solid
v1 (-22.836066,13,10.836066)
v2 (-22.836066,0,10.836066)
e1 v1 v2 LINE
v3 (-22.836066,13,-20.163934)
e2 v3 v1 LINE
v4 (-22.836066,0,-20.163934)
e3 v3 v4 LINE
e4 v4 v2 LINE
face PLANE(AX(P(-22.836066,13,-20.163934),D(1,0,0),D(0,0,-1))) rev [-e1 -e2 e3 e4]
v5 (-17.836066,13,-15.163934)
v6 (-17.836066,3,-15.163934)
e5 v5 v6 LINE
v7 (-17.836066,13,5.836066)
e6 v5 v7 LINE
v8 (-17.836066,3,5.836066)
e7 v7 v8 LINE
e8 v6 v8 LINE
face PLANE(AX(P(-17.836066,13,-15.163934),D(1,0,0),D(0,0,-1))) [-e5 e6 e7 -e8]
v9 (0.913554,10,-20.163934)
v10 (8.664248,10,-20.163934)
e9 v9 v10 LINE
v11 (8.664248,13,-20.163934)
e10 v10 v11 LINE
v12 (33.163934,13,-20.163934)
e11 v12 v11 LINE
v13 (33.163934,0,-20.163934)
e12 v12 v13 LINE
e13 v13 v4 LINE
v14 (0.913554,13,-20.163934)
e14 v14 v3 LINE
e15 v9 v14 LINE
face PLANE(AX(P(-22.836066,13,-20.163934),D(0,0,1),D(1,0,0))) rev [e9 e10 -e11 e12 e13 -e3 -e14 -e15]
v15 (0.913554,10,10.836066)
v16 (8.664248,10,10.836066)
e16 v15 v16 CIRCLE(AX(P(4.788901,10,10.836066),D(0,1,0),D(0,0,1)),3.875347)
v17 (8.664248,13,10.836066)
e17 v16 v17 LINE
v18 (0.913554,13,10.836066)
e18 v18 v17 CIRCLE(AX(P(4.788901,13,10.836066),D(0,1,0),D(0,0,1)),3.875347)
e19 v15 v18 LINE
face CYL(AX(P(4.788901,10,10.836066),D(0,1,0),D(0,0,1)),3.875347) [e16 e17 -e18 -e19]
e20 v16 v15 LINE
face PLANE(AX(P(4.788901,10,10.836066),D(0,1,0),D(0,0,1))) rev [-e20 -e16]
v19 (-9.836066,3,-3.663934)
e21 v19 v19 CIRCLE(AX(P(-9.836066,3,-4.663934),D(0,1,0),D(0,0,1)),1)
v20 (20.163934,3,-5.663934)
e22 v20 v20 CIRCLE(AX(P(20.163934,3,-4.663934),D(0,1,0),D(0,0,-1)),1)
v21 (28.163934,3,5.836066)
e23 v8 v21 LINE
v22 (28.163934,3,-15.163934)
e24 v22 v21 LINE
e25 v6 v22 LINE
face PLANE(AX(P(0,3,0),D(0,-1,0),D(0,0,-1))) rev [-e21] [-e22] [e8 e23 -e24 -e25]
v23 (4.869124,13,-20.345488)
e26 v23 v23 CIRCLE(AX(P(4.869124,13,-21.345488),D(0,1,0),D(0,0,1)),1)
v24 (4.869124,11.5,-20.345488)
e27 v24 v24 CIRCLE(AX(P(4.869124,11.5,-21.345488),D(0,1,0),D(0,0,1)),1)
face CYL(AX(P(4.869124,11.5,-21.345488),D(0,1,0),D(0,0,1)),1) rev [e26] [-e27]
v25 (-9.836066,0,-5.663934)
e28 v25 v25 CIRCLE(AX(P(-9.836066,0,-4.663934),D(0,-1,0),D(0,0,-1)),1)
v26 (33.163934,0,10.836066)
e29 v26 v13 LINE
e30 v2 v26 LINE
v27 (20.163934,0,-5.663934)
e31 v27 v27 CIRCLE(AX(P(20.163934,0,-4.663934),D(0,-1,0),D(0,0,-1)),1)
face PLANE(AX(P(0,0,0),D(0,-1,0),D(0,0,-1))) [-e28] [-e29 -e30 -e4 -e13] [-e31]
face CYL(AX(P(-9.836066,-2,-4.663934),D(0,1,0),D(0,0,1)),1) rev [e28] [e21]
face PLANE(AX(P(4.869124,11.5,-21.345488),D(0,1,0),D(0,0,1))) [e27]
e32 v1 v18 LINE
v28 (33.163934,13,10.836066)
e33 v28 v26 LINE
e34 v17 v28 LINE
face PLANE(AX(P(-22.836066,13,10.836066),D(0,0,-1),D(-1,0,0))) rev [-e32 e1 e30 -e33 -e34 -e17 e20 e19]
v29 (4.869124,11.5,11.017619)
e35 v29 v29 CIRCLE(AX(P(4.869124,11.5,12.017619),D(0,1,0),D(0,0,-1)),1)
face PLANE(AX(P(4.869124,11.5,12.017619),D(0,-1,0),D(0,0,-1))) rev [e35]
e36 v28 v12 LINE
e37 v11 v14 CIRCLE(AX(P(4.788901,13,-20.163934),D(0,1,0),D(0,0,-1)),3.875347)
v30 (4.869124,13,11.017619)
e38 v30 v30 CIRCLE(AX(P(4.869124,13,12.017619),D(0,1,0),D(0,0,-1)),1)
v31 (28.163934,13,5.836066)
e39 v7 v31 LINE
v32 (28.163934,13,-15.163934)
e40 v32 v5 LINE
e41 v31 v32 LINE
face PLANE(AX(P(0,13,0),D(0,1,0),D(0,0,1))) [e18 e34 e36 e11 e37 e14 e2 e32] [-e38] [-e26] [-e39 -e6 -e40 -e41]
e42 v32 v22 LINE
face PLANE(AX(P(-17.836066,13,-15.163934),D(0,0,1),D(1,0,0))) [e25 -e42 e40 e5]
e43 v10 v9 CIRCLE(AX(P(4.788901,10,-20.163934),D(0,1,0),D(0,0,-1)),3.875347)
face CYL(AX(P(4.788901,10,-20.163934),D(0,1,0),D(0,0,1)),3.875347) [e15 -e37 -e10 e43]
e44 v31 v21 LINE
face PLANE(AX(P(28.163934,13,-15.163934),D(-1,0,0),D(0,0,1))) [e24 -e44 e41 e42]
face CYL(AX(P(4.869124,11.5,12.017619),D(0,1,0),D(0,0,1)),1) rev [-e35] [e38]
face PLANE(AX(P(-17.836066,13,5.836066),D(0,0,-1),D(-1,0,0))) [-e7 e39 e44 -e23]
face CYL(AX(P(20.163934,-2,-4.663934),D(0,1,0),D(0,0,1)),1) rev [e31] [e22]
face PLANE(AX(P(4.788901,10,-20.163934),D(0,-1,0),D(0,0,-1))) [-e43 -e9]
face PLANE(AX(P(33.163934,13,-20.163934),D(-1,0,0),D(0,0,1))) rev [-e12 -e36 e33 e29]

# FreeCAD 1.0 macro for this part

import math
import FreeCAD as App
import Part
import Sketcher

V = App.Vector
Q = App.Units.Quantity


def add_polygon(sketch, points):
    """Adds a closed chain of lines whose ends are joined by coincident constraints."""
    first, n = sketch.GeometryCount, len(points)
    for a, b in zip(points, points[1:] + points[:1]):
        sketch.addGeometry(Part.LineSegment(App.Vector(*a, 0), App.Vector(*b, 0)), False)
    for i in range(n):
        sketch.addConstraint(Sketcher.Constraint("Coincident", first + i, 2, first + (i + 1) % n, 1))

doc = App.newDocument("Part")
params = doc.addObject("Spreadsheet::Sheet", "Params")
for row, (alias, value) in enumerate([
    ("sketch1_width", "46 mm"),
    ("sketch1_height", "21 mm"),
    ("pad1_length", "3 mm"),
    ("sketch2_width", "56 mm"),
    ("sketch2_width2", "46 mm"),
    ("sketch2_height", "31 mm"),
    ("sketch2_height2", "21 mm"),
    ("pad2_length", "13 mm"),
    ("pad3_length", "3 mm"),
    ("sketch4_diameter", "2 mm"),
    ("pocket1_length", "1.5 mm"),
    ("sketch5_diameter", "2 mm"),
    ("pocket2_length", "5 mm"),
], start=1):
    params.set(f"A{row}", alias)
    params.set(f"B{row}", "=" + value)
    params.setAlias(f"B{row}", alias)

body = doc.addObject("PartDesign::Body", "Body")

sketch1 = body.newObject("Sketcher::SketchObject", "Sketch")
sketch1.AttachmentSupport = (doc.getObject("XZ_Plane"), [""])
sketch1.MapMode = "FlatFace"
add_polygon(sketch1, [(-18, -15), (-18, 6), (28, 6), (28, -15)])
sketch1.addConstraint(Sketcher.Constraint("Vertical", 0))
sketch1.addConstraint(Sketcher.Constraint("Horizontal", 1))
sketch1.addConstraint(Sketcher.Constraint("Vertical", 2))
sketch1.addConstraint(Sketcher.Constraint("Horizontal", 3))
sketch1.addConstraint(Sketcher.Constraint("DistanceX", 1, 1, 1, 2, Q("46 mm")))
sketch1.addConstraint(Sketcher.Constraint("DistanceY", 0, 1, 0, 2, Q("21 mm")))
sketch1.addConstraint(Sketcher.Constraint("DistanceX", 0, 2, -1, 1, Q("17.836066 mm")))
sketch1.addConstraint(Sketcher.Constraint("DistanceY", -1, 1, 0, 2, Q("5.836066 mm")))
sketch1.setExpression("Constraints[8]", "Params.sketch1_width")
sketch1.setExpression("Constraints[9]", "Params.sketch1_height")
pad1 = body.newObject("PartDesign::Pad", "Pad")
pad1.Profile = sketch1
pad1.setExpression("Length", "Params.pad1_length")
pad1.Reversed = True

sketch2 = body.newObject("Sketcher::SketchObject", "Sketch001")
sketch2.AttachmentSupport = (doc.getObject("XZ_Plane"), [""])
sketch2.MapMode = "FlatFace"
add_polygon(sketch2, [(-23, -20), (-23, 11), (33, 11), (33, -20)])
add_polygon(sketch2, [(28, 6), (-18, 6), (-18, -15), (28, -15)])
sketch2.addConstraint(Sketcher.Constraint("Vertical", 0))
sketch2.addConstraint(Sketcher.Constraint("Horizontal", 1))
sketch2.addConstraint(Sketcher.Constraint("Vertical", 2))
sketch2.addConstraint(Sketcher.Constraint("Horizontal", 3))
sketch2.addConstraint(Sketcher.Constraint("Horizontal", 4))
sketch2.addConstraint(Sketcher.Constraint("Vertical", 5))
sketch2.addConstraint(Sketcher.Constraint("Horizontal", 6))
sketch2.addConstraint(Sketcher.Constraint("Vertical", 7))
sketch2.addConstraint(Sketcher.Constraint("DistanceX", 1, 1, 1, 2, Q("56 mm")))
sketch2.addConstraint(Sketcher.Constraint("DistanceX", 4, 2, 4, 1, Q("46 mm")))
sketch2.addConstraint(Sketcher.Constraint("DistanceY", 0, 1, 0, 2, Q("31 mm")))
sketch2.addConstraint(Sketcher.Constraint("DistanceY", 5, 2, 5, 1, Q("21 mm")))
sketch2.addConstraint(Sketcher.Constraint("DistanceX", 0, 2, 4, 2, Q("5 mm")))
sketch2.addConstraint(Sketcher.Constraint("DistanceY", 4, 2, 0, 2, Q("5 mm")))
sketch2.addConstraint(Sketcher.Constraint("DistanceX", 0, 2, -1, 1, Q("22.836066 mm")))
sketch2.addConstraint(Sketcher.Constraint("DistanceY", -1, 1, 0, 2, Q("10.836066 mm")))
sketch2.setExpression("Constraints[16]", "Params.sketch2_width")
sketch2.setExpression("Constraints[17]", "Params.sketch2_width2")
sketch2.setExpression("Constraints[18]", "Params.sketch2_height")
sketch2.setExpression("Constraints[19]", "Params.sketch2_height2")
pad2 = body.newObject("PartDesign::Pad", "Pad001")
pad2.Profile = sketch2
pad2.setExpression("Length", "Params.pad2_length")
pad2.Reversed = True

sketch3 = body.newObject("Sketcher::SketchObject", "Sketch002")
sketch3.AttachmentSupport = (doc.getObject("XZ_Plane"), [""])
sketch3.MapMode = "FlatFace"
sketch3.AttachmentOffset = App.Placement(V(0, 0, -13), App.Rotation())
sketch3.addGeometry(Part.LineSegment(V(0.9, -20.2, 0), V(8.7, -20.2, 0)), False)
sketch3.addGeometry(Part.ArcOfCircle(Part.Circle(V(4.8, -20.2, 0), V(0, 0, 1), 3.9), math.radians(180), math.radians(360)), False)
sketch3.addGeometry(Part.LineSegment(V(8.7, 10.8, 0), V(0.9, 10.8, 0)), False)
sketch3.addGeometry(Part.ArcOfCircle(Part.Circle(V(4.8, 10.8, 0), V(0, 0, 1), 3.9), math.radians(0), math.radians(180)), False)
sketch3.addConstraint(Sketcher.Constraint("Coincident", 0, 1, 1, 1))
sketch3.addConstraint(Sketcher.Constraint("Coincident", 1, 2, 0, 2))
sketch3.addConstraint(Sketcher.Constraint("Coincident", 2, 1, 3, 1))
sketch3.addConstraint(Sketcher.Constraint("Coincident", 3, 2, 2, 2))
sketch3.addConstraint(Sketcher.Constraint("Horizontal", 0))
sketch3.addConstraint(Sketcher.Constraint("Horizontal", 2))
sketch3.addConstraint(Sketcher.Constraint("Equal", 1, 3))
sketch3.addConstraint(Sketcher.Constraint("Horizontal", 1, 3, 0, 1))
sketch3.addConstraint(Sketcher.Constraint("Horizontal", 3, 3, 2, 1))
sketch3.addConstraint(Sketcher.Constraint("Vertical", 1, 3, 3, 3))
sketch3.addConstraint(Sketcher.Constraint("DistanceY", 1, 3, 3, 3, Q("31 mm")))
sketch3.addConstraint(Sketcher.Constraint("Radius", 1, Q("3.875347 mm")))
sketch3.addConstraint(Sketcher.Constraint("DistanceX", -1, 1, 1, 3, Q("4.788901 mm")))
sketch3.addConstraint(Sketcher.Constraint("DistanceY", 1, 3, -1, 1, Q("20.163934 mm")))
pad3 = body.newObject("PartDesign::Pad", "Pad002")
pad3.Profile = sketch3
pad3.setExpression("Length", "Params.pad3_length")

sketch4 = body.newObject("Sketcher::SketchObject", "Sketch003")
sketch4.AttachmentSupport = (doc.getObject("XZ_Plane"), [""])
sketch4.MapMode = "FlatFace"
sketch4.AttachmentOffset = App.Placement(V(0, 0, -13), App.Rotation())
sketch4.addGeometry(Part.Circle(V(4.9, -21.3, 0), V(0, 0, 1), 1), False)
sketch4.addGeometry(Part.Circle(V(4.9, 12, 0), V(0, 0, 1), 1), False)
sketch4.addConstraint(Sketcher.Constraint("Equal", 0, 1))
sketch4.addConstraint(Sketcher.Constraint("Vertical", 0, 3, 1, 3))
sketch4.addConstraint(Sketcher.Constraint("Diameter", 0, Q("2 mm")))
sketch4.addConstraint(Sketcher.Constraint("DistanceY", 0, 3, -1, 1, Q("21.345488 mm")))
sketch4.addConstraint(Sketcher.Constraint("DistanceY", -1, 1, 1, 3, Q("12.017619 mm")))
sketch4.addConstraint(Sketcher.Constraint("DistanceX", -1, 1, 0, 3, Q("4.869124 mm")))
sketch4.setExpression("Constraints[2]", "Params.sketch4_diameter")
pocket1 = body.newObject("PartDesign::Pocket", "Pocket")
pocket1.Profile = sketch4
pocket1.setExpression("Length", "Params.pocket1_length")
pocket1.Reversed = True

sketch5 = body.newObject("Sketcher::SketchObject", "Sketch004")
sketch5.AttachmentSupport = (doc.getObject("XZ_Plane"), [""])
sketch5.MapMode = "FlatFace"
sketch5.AttachmentOffset = App.Placement(V(0, 0, -3), App.Rotation())
sketch5.addGeometry(Part.Circle(V(-9.8, -4.7, 0), V(0, 0, 1), 1), False)
sketch5.addGeometry(Part.Circle(V(20.2, -4.7, 0), V(0, 0, 1), 1), False)
sketch5.addConstraint(Sketcher.Constraint("Equal", 0, 1))
sketch5.addConstraint(Sketcher.Constraint("Horizontal", 0, 3, 1, 3))
sketch5.addConstraint(Sketcher.Constraint("Diameter", 0, Q("2 mm")))
sketch5.addConstraint(Sketcher.Constraint("DistanceX", 0, 3, 1, 3, Q("30 mm")))
sketch5.addConstraint(Sketcher.Constraint("DistanceX", 0, 3, -1, 1, Q("9.836066 mm")))
sketch5.addConstraint(Sketcher.Constraint("DistanceY", 0, 3, -1, 1, Q("4.663934 mm")))
sketch5.setExpression("Constraints[2]", "Params.sketch5_diameter")
pocket2 = body.newObject("PartDesign::Pocket", "Pocket001")
pocket2.Profile = sketch5
pocket2.setExpression("Length", "Params.pocket2_length")
pocket2.Reversed = True

doc.recompute()
